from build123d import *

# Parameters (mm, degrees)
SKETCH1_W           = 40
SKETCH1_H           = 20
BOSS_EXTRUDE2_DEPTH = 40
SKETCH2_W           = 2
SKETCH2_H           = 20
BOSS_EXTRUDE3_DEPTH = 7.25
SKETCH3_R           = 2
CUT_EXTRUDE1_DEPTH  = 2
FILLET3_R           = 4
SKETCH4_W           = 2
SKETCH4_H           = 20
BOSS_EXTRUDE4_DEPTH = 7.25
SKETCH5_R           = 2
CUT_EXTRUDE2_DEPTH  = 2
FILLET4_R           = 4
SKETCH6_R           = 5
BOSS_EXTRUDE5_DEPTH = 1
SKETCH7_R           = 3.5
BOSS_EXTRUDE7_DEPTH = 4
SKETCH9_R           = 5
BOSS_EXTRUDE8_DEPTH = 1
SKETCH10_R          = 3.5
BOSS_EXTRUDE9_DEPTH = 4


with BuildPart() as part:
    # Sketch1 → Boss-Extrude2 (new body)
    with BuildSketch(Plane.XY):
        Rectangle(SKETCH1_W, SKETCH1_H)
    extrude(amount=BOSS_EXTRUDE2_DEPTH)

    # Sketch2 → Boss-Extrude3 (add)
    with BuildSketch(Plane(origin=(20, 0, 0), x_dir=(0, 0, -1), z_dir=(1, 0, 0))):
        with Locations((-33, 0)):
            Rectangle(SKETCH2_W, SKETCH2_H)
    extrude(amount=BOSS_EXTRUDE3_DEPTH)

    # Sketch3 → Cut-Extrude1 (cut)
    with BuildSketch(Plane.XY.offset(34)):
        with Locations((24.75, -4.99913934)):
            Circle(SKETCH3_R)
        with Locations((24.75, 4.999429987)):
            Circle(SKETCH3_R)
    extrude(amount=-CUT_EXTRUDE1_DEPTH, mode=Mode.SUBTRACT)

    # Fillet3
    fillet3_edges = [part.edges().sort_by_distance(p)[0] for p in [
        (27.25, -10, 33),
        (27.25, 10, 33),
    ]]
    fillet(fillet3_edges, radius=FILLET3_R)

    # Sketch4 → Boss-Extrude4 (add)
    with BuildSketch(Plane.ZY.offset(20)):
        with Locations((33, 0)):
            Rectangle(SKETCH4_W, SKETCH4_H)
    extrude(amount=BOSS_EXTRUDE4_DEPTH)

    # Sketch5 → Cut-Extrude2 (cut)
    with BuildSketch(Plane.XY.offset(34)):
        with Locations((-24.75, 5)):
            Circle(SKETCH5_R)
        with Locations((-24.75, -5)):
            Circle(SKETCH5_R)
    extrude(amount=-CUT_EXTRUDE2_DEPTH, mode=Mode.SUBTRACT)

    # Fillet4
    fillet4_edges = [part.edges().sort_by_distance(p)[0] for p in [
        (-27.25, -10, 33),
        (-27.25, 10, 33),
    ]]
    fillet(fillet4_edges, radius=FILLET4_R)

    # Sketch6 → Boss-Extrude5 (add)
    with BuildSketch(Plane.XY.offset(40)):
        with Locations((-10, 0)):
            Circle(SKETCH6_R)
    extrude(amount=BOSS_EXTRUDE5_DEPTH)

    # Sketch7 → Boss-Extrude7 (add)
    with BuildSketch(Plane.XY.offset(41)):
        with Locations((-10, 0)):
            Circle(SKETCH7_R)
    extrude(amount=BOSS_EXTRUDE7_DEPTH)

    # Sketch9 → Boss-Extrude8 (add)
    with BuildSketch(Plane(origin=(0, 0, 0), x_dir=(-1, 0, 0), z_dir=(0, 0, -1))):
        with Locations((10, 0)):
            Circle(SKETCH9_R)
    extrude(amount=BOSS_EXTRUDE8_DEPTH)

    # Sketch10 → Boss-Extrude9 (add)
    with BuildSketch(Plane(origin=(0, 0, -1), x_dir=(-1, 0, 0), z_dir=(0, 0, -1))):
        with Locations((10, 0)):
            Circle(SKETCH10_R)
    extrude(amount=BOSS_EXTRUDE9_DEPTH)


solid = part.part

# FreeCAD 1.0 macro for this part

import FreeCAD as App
import Part
import Sketcher


def edges_at(feature, points):
    """Names of the edges that pass closest to the given points."""
    edges = feature.Shape.Edges
    near = lambda p: min(range(len(edges)), key=lambda i: edges[i].distToShape(Part.Vertex(*p))[0])
    return sorted({f"Edge{near(p) + 1}" for p in points})

doc = App.newDocument("Part")
body = doc.addObject("PartDesign::Body", "Body")

sketch1 = body.newObject("Sketcher::SketchObject", "Sketch")
sketch1.AttachmentSupport = (doc.getObject("XY_Plane"), [""])
sketch1.MapMode = "FlatFace"
sketch1.addGeometry(Part.LineSegment(App.Vector(-20, 10, 0), App.Vector(-20, -10, 0)), False)
sketch1.addGeometry(Part.LineSegment(App.Vector(-20, -10, 0), App.Vector(20, -10, 0)), False)
sketch1.addGeometry(Part.LineSegment(App.Vector(20, -10, 0), App.Vector(20, 10, 0)), False)
sketch1.addGeometry(Part.LineSegment(App.Vector(20, 10, 0), App.Vector(-20, 10, 0)), False)
sketch1.addConstraint(Sketcher.Constraint("Coincident", 0, 2, 1, 1))
sketch1.addConstraint(Sketcher.Constraint("Coincident", 1, 2, 2, 1))
sketch1.addConstraint(Sketcher.Constraint("Coincident", 2, 2, 3, 1))
sketch1.addConstraint(Sketcher.Constraint("Coincident", 3, 2, 0, 1))
sketch1.addConstraint(Sketcher.Constraint("Vertical", 0))
sketch1.addConstraint(Sketcher.Constraint("Horizontal", 1))
sketch1.addConstraint(Sketcher.Constraint("Vertical", 2))
sketch1.addConstraint(Sketcher.Constraint("Horizontal", 3))
sketch1.addConstraint(Sketcher.Constraint("Symmetric", 0, 2, 2, 2, -1, 1))
sketch1.addConstraint(Sketcher.Constraint("DistanceX", 1, 1, 1, 2, 40.0))
sketch1.addConstraint(Sketcher.Constraint("DistanceY", 0, 2, 0, 1, 20.0))
pad1 = body.newObject("PartDesign::Pad", "Pad")
pad1.Profile = sketch1
pad1.Length = 40

sketch2 = body.newObject("Sketcher::SketchObject", "Sketch001")
sketch2.AttachmentSupport = (doc.getObject("YZ_Plane"), [""])
sketch2.MapMode = "FlatFace"
sketch2.AttachmentOffset = App.Placement(App.Vector(0, 0, 20), App.Rotation())
sketch2.addGeometry(Part.LineSegment(App.Vector(10, 34, 0), App.Vector(-10, 34, 0)), False)
sketch2.addGeometry(Part.LineSegment(App.Vector(-10, 34, 0), App.Vector(-10, 32, 0)), False)
sketch2.addGeometry(Part.LineSegment(App.Vector(-10, 32, 0), App.Vector(10, 32, 0)), False)
sketch2.addGeometry(Part.LineSegment(App.Vector(10, 32, 0), App.Vector(10, 34, 0)), False)
sketch2.addConstraint(Sketcher.Constraint("Coincident", 0, 2, 1, 1))
sketch2.addConstraint(Sketcher.Constraint("Coincident", 1, 2, 2, 1))
sketch2.addConstraint(Sketcher.Constraint("Coincident", 2, 2, 3, 1))
sketch2.addConstraint(Sketcher.Constraint("Coincident", 3, 2, 0, 1))
sketch2.addConstraint(Sketcher.Constraint("Horizontal", 0))
sketch2.addConstraint(Sketcher.Constraint("Vertical", 1))
sketch2.addConstraint(Sketcher.Constraint("Horizontal", 2))
sketch2.addConstraint(Sketcher.Constraint("Vertical", 3))
sketch2.addConstraint(Sketcher.Constraint("DistanceX", 0, 2, 0, 1, 20.0))
sketch2.addConstraint(Sketcher.Constraint("DistanceY", 1, 2, 1, 1, 2.0))
sketch2.addConstraint(Sketcher.Constraint("DistanceX", 0, 2, -1, 1, 10.0))
sketch2.addConstraint(Sketcher.Constraint("DistanceY", -1, 1, 0, 2, 34.0))
pad2 = body.newObject("PartDesign::Pad", "Pad001")
pad2.Profile = sketch2
pad2.Length = 7.25

sketch3 = body.newObject("Sketcher::SketchObject", "Sketch002")
sketch3.AttachmentSupport = (doc.getObject("XY_Plane"), [""])
sketch3.MapMode = "FlatFace"
sketch3.AttachmentOffset = App.Placement(App.Vector(0, 0, 34), App.Rotation())
sketch3.addGeometry(Part.Circle(App.Vector(24.75, -4.999139, 0), App.Vector(0, 0, 1), 2), False)
sketch3.addGeometry(Part.Circle(App.Vector(24.75, 4.99943, 0), App.Vector(0, 0, 1), 2), False)
sketch3.addConstraint(Sketcher.Constraint("Equal", 0, 1))
sketch3.addConstraint(Sketcher.Constraint("Vertical", 0, 3, 1, 3))
sketch3.addConstraint(Sketcher.Constraint("Diameter", 0, 4.0))
sketch3.addConstraint(Sketcher.Constraint("DistanceX", -1, 1, 0, 3, 24.75))
sketch3.addConstraint(Sketcher.Constraint("DistanceY", 0, 3, -1, 1, 4.999139))
sketch3.addConstraint(Sketcher.Constraint("DistanceY", -1, 1, 1, 3, 4.99943))
pocket1 = body.newObject("PartDesign::Pocket", "Pocket")
pocket1.Profile = sketch3
pocket1.Length = 2
doc.recompute()

fillet = body.newObject("PartDesign::Fillet", "Fillet")
fillet.Base = (pocket1, edges_at(pocket1, [(27.25, -10, 33), (27.25, 10, 33)]))
fillet.Radius = 4

sketch4 = body.newObject("Sketcher::SketchObject", "Sketch003")
sketch4.AttachmentSupport = (doc.getObject("YZ_Plane"), [""])
sketch4.MapMode = "FlatFace"
sketch4.AttachmentOffset = App.Placement(App.Vector(0, 0, -20), App.Rotation())
sketch4.addGeometry(Part.LineSegment(App.Vector(10, 32, 0), App.Vector(-10, 32, 0)), False)
sketch4.addGeometry(Part.LineSegment(App.Vector(-10, 32, 0), App.Vector(-10, 34, 0)), False)
sketch4.addGeometry(Part.LineSegment(App.Vector(-10, 34, 0), App.Vector(10, 34, 0)), False)
sketch4.addGeometry(Part.LineSegment(App.Vector(10, 34, 0), App.Vector(10, 32, 0)), False)
sketch4.addConstraint(Sketcher.Constraint("Coincident", 0, 2, 1, 1))
sketch4.addConstraint(Sketcher.Constraint("Coincident", 1, 2, 2, 1))
sketch4.addConstraint(Sketcher.Constraint("Coincident", 2, 2, 3, 1))
sketch4.addConstraint(Sketcher.Constraint("Coincident", 3, 2, 0, 1))
sketch4.addConstraint(Sketcher.Constraint("Horizontal", 0))
sketch4.addConstraint(Sketcher.Constraint("Vertical", 1))
sketch4.addConstraint(Sketcher.Constraint("Horizontal", 2))
sketch4.addConstraint(Sketcher.Constraint("Vertical", 3))
sketch4.addConstraint(Sketcher.Constraint("DistanceX", 0, 2, 0, 1, 20.0))
sketch4.addConstraint(Sketcher.Constraint("DistanceY", 1, 1, 1, 2, 2.0))
sketch4.addConstraint(Sketcher.Constraint("DistanceX", 0, 2, -1, 1, 10.0))
sketch4.addConstraint(Sketcher.Constraint("DistanceY", -1, 1, 0, 2, 32.0))
pad3 = body.newObject("PartDesign::Pad", "Pad002")
pad3.Profile = sketch4
pad3.Length = 7.25
pad3.Reversed = True

sketch5 = body.newObject("Sketcher::SketchObject", "Sketch004")
sketch5.AttachmentSupport = (doc.getObject("XY_Plane"), [""])
sketch5.MapMode = "FlatFace"
sketch5.AttachmentOffset = App.Placement(App.Vector(0, 0, 34), App.Rotation())
sketch5.addGeometry(Part.Circle(App.Vector(-24.75, 5, 0), App.Vector(0, 0, 1), 2), False)
sketch5.addGeometry(Part.Circle(App.Vector(-24.75, -5, 0), App.Vector(0, 0, 1), 2), False)
sketch5.addConstraint(Sketcher.Constraint("Equal", 0, 1))
sketch5.addConstraint(Sketcher.Constraint("Symmetric", 0, 3, 1, 3, -1))
sketch5.addConstraint(Sketcher.Constraint("Diameter", 0, 4.0))
sketch5.addConstraint(Sketcher.Constraint("DistanceY", -1, 1, 0, 3, 5.0))
sketch5.addConstraint(Sketcher.Constraint("DistanceX", 0, 3, -1, 1, 24.75))
pocket2 = body.newObject("PartDesign::Pocket", "Pocket001")
pocket2.Profile = sketch5
pocket2.Length = 2
doc.recompute()

fillet2 = body.newObject("PartDesign::Fillet", "Fillet001")
fillet2.Base = (pocket2, edges_at(pocket2, [(-27.25, -10, 33), (-27.25, 10, 33)]))
fillet2.Radius = 4

sketch6 = body.newObject("Sketcher::SketchObject", "Sketch005")
sketch6.AttachmentSupport = (doc.getObject("XY_Plane"), [""])
sketch6.MapMode = "FlatFace"
sketch6.AttachmentOffset = App.Placement(App.Vector(0, 0, 40), App.Rotation())
sketch6.addGeometry(Part.Circle(App.Vector(-10, 0, 0), App.Vector(0, 0, 1), 5), False)
sketch6.addConstraint(Sketcher.Constraint("PointOnObject", 0, 3, -1))
sketch6.addConstraint(Sketcher.Constraint("Diameter", 0, 10.0))
sketch6.addConstraint(Sketcher.Constraint("DistanceX", 0, 3, -1, 1, 10.0))
pad4 = body.newObject("PartDesign::Pad", "Pad003")
pad4.Profile = sketch6
pad4.Length = 1

sketch7 = body.newObject("Sketcher::SketchObject", "Sketch006")
sketch7.AttachmentSupport = (doc.getObject("XY_Plane"), [""])
sketch7.MapMode = "FlatFace"
sketch7.AttachmentOffset = App.Placement(App.Vector(0, 0, 41), App.Rotation())
sketch7.addGeometry(Part.Circle(App.Vector(-10, 0, 0), App.Vector(0, 0, 1), 3.5), False)
sketch7.addConstraint(Sketcher.Constraint("PointOnObject", 0, 3, -1))
sketch7.addConstraint(Sketcher.Constraint("Diameter", 0, 7.0))
sketch7.addConstraint(Sketcher.Constraint("DistanceX", 0, 3, -1, 1, 10.0))
pad5 = body.newObject("PartDesign::Pad", "Pad004")
pad5.Profile = sketch7
pad5.Length = 4

sketch8 = body.newObject("Sketcher::SketchObject", "Sketch007")
sketch8.AttachmentSupport = (doc.getObject("XY_Plane"), [""])
sketch8.MapMode = "FlatFace"
sketch8.addGeometry(Part.Circle(App.Vector(-10, 0, 0), App.Vector(0, 0, 1), 5), False)
sketch8.addConstraint(Sketcher.Constraint("PointOnObject", 0, 3, -1))
sketch8.addConstraint(Sketcher.Constraint("Diameter", 0, 10.0))
sketch8.addConstraint(Sketcher.Constraint("DistanceX", 0, 3, -1, 1, 10.0))
pad6 = body.newObject("PartDesign::Pad", "Pad005")
pad6.Profile = sketch8
pad6.Length = 1
pad6.Reversed = True

sketch9 = body.newObject("Sketcher::SketchObject", "Sketch008")
sketch9.AttachmentSupport = (doc.getObject("XY_Plane"), [""])
sketch9.MapMode = "FlatFace"
sketch9.AttachmentOffset = App.Placement(App.Vector(0, 0, -1), App.Rotation())
sketch9.addGeometry(Part.Circle(App.Vector(-10, 0, 0), App.Vector(0, 0, 1), 3.5), False)
sketch9.addConstraint(Sketcher.Constraint("PointOnObject", 0, 3, -1))
sketch9.addConstraint(Sketcher.Constraint("Diameter", 0, 7.0))
sketch9.addConstraint(Sketcher.Constraint("DistanceX", 0, 3, -1, 1, 10.0))
pad7 = body.newObject("PartDesign::Pad", "Pad006")
pad7.Profile = sketch9
pad7.Length = 4
pad7.Reversed = True

doc.recompute()
